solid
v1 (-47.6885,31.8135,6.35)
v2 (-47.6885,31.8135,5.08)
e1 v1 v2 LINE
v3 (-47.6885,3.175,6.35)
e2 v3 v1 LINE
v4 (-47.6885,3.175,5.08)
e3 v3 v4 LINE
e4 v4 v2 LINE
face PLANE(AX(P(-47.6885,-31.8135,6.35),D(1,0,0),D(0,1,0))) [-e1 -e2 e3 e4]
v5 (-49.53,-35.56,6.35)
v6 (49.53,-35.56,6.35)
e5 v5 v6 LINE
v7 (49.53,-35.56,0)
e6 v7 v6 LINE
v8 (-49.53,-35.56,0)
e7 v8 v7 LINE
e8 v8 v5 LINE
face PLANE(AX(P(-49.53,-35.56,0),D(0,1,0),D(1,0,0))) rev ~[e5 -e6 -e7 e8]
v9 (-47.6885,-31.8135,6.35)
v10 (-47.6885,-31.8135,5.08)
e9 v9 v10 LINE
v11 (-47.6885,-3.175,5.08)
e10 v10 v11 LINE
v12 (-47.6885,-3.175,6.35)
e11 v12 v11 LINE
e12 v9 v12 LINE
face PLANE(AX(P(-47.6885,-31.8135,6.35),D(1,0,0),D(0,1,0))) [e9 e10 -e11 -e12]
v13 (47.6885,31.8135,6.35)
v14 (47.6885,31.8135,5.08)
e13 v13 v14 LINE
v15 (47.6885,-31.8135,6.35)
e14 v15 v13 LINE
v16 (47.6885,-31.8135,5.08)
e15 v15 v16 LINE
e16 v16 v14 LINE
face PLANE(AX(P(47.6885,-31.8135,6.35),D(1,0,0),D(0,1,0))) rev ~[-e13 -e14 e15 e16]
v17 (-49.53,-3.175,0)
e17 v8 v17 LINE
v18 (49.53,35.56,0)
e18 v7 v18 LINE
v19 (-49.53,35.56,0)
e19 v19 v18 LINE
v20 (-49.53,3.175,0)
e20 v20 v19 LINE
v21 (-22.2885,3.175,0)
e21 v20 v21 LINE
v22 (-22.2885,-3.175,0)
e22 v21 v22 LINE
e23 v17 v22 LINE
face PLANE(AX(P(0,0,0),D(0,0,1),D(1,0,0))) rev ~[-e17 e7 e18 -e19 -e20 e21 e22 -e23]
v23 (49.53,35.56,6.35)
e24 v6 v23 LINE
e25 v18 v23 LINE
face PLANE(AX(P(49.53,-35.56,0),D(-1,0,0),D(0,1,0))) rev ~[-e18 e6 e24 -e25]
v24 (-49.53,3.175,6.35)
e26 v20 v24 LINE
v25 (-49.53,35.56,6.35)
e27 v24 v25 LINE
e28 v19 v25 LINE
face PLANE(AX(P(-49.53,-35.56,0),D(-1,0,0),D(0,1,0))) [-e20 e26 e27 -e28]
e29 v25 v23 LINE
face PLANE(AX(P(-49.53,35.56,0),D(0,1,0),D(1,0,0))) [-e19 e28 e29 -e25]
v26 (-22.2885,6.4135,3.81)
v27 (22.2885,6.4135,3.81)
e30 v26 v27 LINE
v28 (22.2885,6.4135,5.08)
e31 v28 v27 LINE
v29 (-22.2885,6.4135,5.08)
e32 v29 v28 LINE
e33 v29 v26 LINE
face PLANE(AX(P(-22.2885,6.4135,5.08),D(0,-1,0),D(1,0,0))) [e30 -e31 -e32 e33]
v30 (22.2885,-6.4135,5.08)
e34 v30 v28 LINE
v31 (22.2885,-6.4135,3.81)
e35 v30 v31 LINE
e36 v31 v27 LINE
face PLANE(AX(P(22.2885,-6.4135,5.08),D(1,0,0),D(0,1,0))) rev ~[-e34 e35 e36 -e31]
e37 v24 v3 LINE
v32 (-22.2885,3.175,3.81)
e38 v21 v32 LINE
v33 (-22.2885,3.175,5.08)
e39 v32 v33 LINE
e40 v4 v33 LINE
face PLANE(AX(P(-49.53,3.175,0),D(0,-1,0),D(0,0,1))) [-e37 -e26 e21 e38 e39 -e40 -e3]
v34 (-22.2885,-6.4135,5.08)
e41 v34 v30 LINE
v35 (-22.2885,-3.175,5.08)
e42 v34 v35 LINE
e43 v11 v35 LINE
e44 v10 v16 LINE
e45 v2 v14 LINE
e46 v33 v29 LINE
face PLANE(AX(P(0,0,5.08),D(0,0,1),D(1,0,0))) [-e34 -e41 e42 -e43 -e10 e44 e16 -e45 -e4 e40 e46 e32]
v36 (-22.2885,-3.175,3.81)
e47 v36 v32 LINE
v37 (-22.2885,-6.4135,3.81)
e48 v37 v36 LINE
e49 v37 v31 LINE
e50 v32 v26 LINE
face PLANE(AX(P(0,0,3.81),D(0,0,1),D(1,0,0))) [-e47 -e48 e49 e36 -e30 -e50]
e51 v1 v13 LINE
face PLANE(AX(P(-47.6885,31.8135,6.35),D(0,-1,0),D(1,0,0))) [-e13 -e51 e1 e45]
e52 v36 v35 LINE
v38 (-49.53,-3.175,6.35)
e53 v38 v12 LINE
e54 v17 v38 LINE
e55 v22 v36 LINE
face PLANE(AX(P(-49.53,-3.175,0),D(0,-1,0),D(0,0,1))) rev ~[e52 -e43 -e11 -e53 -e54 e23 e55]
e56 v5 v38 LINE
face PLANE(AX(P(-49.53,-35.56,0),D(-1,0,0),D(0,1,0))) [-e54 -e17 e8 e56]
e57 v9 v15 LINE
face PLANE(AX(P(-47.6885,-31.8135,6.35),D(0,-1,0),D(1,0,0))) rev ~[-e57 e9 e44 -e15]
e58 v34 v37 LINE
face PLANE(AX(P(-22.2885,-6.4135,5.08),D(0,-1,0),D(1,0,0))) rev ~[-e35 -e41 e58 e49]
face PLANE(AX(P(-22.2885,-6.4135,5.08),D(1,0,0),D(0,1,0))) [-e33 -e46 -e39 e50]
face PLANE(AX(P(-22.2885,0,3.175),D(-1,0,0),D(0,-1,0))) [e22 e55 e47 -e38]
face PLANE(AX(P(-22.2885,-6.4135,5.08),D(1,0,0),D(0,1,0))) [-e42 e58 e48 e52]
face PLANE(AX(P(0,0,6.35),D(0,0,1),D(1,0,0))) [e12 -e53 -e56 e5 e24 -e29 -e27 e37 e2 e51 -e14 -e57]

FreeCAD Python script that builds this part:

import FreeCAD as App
import Part
import Sketcher
from FreeCAD import Vector
Q = App.Units.Quantity

doc = App.newDocument("Part")
params = doc.addObject("Spreadsheet::Sheet", "Params")
for row, (alias, value) in enumerate([
    ("sketch1_width", "3.9 in"),
    ("sketch1_height", "2.8 in"),
    ("pad1_length", "0.25 in"),
    ("sketch2_width", "3.755 in"),
    ("sketch2_height", "2.505 in"),
    ("pocket1_length", "0.05 in"),
    ("sketch3_width", "1.755 in"),
    ("sketch3_height", "0.505 in"),
    ("pocket2_length", "0.05 in"),
    ("sketch4_width", "0.25 in"),
    ("pocket3_length", "1.0725 in"),
], start=1):
    params.set(f"A{row}", alias)
    params.set(f"B{row}", "=" + value)
    params.setAlias(f"B{row}", alias)

body = doc.addObject("PartDesign::Body", "Body")

# Sketch on XY plane
sketch1 = body.newObject("Sketcher::SketchObject", "Sketch")
sketch1.AttachmentSupport = (doc.getObject("XY_Plane"), [""])
sketch1.MapMode = "FlatFace"
sketch1.addGeometry(Part.LineSegment(Vector(-50, 36, 0), Vector(-50, -36, 0)), False)
sketch1.addGeometry(Part.LineSegment(Vector(-50, -36, 0), Vector(50, -36, 0)), False)
sketch1.addGeometry(Part.LineSegment(Vector(50, -36, 0), Vector(50, 36, 0)), False)
sketch1.addGeometry(Part.LineSegment(Vector(50, 36, 0), Vector(-50, 36, 0)), False)
sketch1.addConstraint(Sketcher.Constraint("Coincident", 0, 2, 1, 1))
sketch1.addConstraint(Sketcher.Constraint("Coincident", 1, 2, 2, 1))
sketch1.addConstraint(Sketcher.Constraint("Coincident", 2, 2, 3, 1))
sketch1.addConstraint(Sketcher.Constraint("Coincident", 3, 2, 0, 1))
sketch1.addConstraint(Sketcher.Constraint("Vertical", 0))
sketch1.addConstraint(Sketcher.Constraint("Horizontal", 1))
sketch1.addConstraint(Sketcher.Constraint("Vertical", 2))
sketch1.addConstraint(Sketcher.Constraint("Horizontal", 3))
sketch1.addConstraint(Sketcher.Constraint("Symmetric", 0, 2, 2, 2, -1, 1))
sketch1.addConstraint(Sketcher.Constraint("DistanceX", 1, 1, 1, 2, Q("3.9 in")))
sketch1.addConstraint(Sketcher.Constraint("DistanceY", 0, 2, 0, 1, Q("2.8 in")))
sketch1.setExpression("Constraints[9]", "Params.sketch1_width")
sketch1.setExpression("Constraints[10]", "Params.sketch1_height")
pad1 = body.newObject("PartDesign::Pad", "Pad")
pad1.Profile = sketch1
pad1.setExpression("Length", "Params.pad1_length")

# Sketch on XY plane
sketch2 = body.newObject("Sketcher::SketchObject", "Sketch001")
sketch2.AttachmentSupport = (doc.getObject("XY_Plane"), [""])
sketch2.MapMode = "FlatFace"
sketch2.AttachmentOffset = App.Placement(Vector(0, 0, 0.25 * 25.4), App.Rotation())
sketch2.addGeometry(Part.LineSegment(Vector(-48, 32, 0), Vector(-48, -32, 0)), False)
sketch2.addGeometry(Part.LineSegment(Vector(-48, -32, 0), Vector(48, -32, 0)), False)
sketch2.addGeometry(Part.LineSegment(Vector(48, -32, 0), Vector(48, 32, 0)), False)
sketch2.addGeometry(Part.LineSegment(Vector(48, 32, 0), Vector(-48, 32, 0)), False)
sketch2.addConstraint(Sketcher.Constraint("Coincident", 0, 2, 1, 1))
sketch2.addConstraint(Sketcher.Constraint("Coincident", 1, 2, 2, 1))
sketch2.addConstraint(Sketcher.Constraint("Coincident", 2, 2, 3, 1))
sketch2.addConstraint(Sketcher.Constraint("Coincident", 3, 2, 0, 1))
sketch2.addConstraint(Sketcher.Constraint("Vertical", 0))
sketch2.addConstraint(Sketcher.Constraint("Horizontal", 1))
sketch2.addConstraint(Sketcher.Constraint("Vertical", 2))
sketch2.addConstraint(Sketcher.Constraint("Horizontal", 3))
sketch2.addConstraint(Sketcher.Constraint("Symmetric", 0, 2, 2, 2, -1, 1))
sketch2.addConstraint(Sketcher.Constraint("DistanceX", 1, 1, 1, 2, Q("3.755 in")))
sketch2.addConstraint(Sketcher.Constraint("DistanceY", 0, 2, 0, 1, Q("2.505 in")))
sketch2.setExpression("Constraints[9]", "Params.sketch2_width")
sketch2.setExpression("Constraints[10]", "Params.sketch2_height")
pocket1 = body.newObject("PartDesign::Pocket", "Pocket")
pocket1.Profile = sketch2
pocket1.setExpression("Length", "Params.pocket1_length")

# Sketch on XY plane
sketch3 = body.newObject("Sketcher::SketchObject", "Sketch002")
sketch3.AttachmentSupport = (doc.getObject("XY_Plane"), [""])
sketch3.MapMode = "FlatFace"
sketch3.AttachmentOffset = App.Placement(Vector(0, 0, 0.2 * 25.4), App.Rotation())
sketch3.addGeometry(Part.LineSegment(Vector(-22, 6, 0), Vector(-22, -6, 0)), False)
sketch3.addGeometry(Part.LineSegment(Vector(-22, -6, 0), Vector(22, -6, 0)), False)
sketch3.addGeometry(Part.LineSegment(Vector(22, -6, 0), Vector(22, 6, 0)), False)
sketch3.addGeometry(Part.LineSegment(Vector(22, 6, 0), Vector(-22, 6, 0)), False)
sketch3.addConstraint(Sketcher.Constraint("Coincident", 0, 2, 1, 1))
sketch3.addConstraint(Sketcher.Constraint("Coincident", 1, 2, 2, 1))
sketch3.addConstraint(Sketcher.Constraint("Coincident", 2, 2, 3, 1))
sketch3.addConstraint(Sketcher.Constraint("Coincident", 3, 2, 0, 1))
sketch3.addConstraint(Sketcher.Constraint("Vertical", 0))
sketch3.addConstraint(Sketcher.Constraint("Horizontal", 1))
sketch3.addConstraint(Sketcher.Constraint("Vertical", 2))
sketch3.addConstraint(Sketcher.Constraint("Horizontal", 3))
sketch3.addConstraint(Sketcher.Constraint("Symmetric", 0, 2, 2, 2, -1, 1))
sketch3.addConstraint(Sketcher.Constraint("DistanceX", 1, 1, 1, 2, Q("1.755 in")))
sketch3.addConstraint(Sketcher.Constraint("DistanceY", 0, 2, 0, 1, Q("0.505 in")))
sketch3.setExpression("Constraints[9]", "Params.sketch3_width")
sketch3.setExpression("Constraints[10]", "Params.sketch3_height")
pocket2 = body.newObject("PartDesign::Pocket", "Pocket001")
pocket2.Profile = sketch3
pocket2.setExpression("Length", "Params.pocket2_length")

# Sketch on YZ plane
sketch4 = body.newObject("Sketcher::SketchObject", "Sketch003")
sketch4.AttachmentSupport = (doc.getObject("YZ_Plane"), [""])
sketch4.MapMode = "FlatFace"
sketch4.AttachmentOffset = App.Placement(Vector(0, 0, -1.95 * 25.4), App.Rotation())
sketch4.addGeometry(Part.LineSegment(Vector(3, 6, 0), Vector(3, 0, 0)), False)
sketch4.addGeometry(Part.LineSegment(Vector(3, 0, 0), Vector(-3, 0, 0)), False)
sketch4.addGeometry(Part.LineSegment(Vector(-3, 0, 0), Vector(-3, 6, 0)), False)
sketch4.addGeometry(Part.LineSegment(Vector(-3, 6, 0), Vector(3, 6, 0)), False)
sketch4.addConstraint(Sketcher.Constraint("Coincident", 0, 2, 1, 1))
sketch4.addConstraint(Sketcher.Constraint("Coincident", 1, 2, 2, 1))
sketch4.addConstraint(Sketcher.Constraint("Coincident", 2, 2, 3, 1))
sketch4.addConstraint(Sketcher.Constraint("Coincident", 3, 2, 0, 1))
sketch4.addConstraint(Sketcher.Constraint("Vertical", 0))
sketch4.addConstraint(Sketcher.Constraint("Horizontal", 1))
sketch4.addConstraint(Sketcher.Constraint("Vertical", 2))
sketch4.addConstraint(Sketcher.Constraint("Horizontal", 3))
sketch4.addConstraint(Sketcher.Constraint("Symmetric", 0, 2, 1, 2, -1, 1))
sketch4.addConstraint(Sketcher.Constraint("Equal", 3, 0))
sketch4.addConstraint(Sketcher.Constraint("DistanceX", 1, 2, 1, 1, Q("0.25 in")))
sketch4.setExpression("Constraints[10]", "Params.sketch4_width")
pocket3 = body.newObject("PartDesign::Pocket", "Pocket002")
pocket3.Profile = sketch4
pocket3.setExpression("Length", "Params.pocket3_length")
pocket3.Reversed = True

doc.recompute()
